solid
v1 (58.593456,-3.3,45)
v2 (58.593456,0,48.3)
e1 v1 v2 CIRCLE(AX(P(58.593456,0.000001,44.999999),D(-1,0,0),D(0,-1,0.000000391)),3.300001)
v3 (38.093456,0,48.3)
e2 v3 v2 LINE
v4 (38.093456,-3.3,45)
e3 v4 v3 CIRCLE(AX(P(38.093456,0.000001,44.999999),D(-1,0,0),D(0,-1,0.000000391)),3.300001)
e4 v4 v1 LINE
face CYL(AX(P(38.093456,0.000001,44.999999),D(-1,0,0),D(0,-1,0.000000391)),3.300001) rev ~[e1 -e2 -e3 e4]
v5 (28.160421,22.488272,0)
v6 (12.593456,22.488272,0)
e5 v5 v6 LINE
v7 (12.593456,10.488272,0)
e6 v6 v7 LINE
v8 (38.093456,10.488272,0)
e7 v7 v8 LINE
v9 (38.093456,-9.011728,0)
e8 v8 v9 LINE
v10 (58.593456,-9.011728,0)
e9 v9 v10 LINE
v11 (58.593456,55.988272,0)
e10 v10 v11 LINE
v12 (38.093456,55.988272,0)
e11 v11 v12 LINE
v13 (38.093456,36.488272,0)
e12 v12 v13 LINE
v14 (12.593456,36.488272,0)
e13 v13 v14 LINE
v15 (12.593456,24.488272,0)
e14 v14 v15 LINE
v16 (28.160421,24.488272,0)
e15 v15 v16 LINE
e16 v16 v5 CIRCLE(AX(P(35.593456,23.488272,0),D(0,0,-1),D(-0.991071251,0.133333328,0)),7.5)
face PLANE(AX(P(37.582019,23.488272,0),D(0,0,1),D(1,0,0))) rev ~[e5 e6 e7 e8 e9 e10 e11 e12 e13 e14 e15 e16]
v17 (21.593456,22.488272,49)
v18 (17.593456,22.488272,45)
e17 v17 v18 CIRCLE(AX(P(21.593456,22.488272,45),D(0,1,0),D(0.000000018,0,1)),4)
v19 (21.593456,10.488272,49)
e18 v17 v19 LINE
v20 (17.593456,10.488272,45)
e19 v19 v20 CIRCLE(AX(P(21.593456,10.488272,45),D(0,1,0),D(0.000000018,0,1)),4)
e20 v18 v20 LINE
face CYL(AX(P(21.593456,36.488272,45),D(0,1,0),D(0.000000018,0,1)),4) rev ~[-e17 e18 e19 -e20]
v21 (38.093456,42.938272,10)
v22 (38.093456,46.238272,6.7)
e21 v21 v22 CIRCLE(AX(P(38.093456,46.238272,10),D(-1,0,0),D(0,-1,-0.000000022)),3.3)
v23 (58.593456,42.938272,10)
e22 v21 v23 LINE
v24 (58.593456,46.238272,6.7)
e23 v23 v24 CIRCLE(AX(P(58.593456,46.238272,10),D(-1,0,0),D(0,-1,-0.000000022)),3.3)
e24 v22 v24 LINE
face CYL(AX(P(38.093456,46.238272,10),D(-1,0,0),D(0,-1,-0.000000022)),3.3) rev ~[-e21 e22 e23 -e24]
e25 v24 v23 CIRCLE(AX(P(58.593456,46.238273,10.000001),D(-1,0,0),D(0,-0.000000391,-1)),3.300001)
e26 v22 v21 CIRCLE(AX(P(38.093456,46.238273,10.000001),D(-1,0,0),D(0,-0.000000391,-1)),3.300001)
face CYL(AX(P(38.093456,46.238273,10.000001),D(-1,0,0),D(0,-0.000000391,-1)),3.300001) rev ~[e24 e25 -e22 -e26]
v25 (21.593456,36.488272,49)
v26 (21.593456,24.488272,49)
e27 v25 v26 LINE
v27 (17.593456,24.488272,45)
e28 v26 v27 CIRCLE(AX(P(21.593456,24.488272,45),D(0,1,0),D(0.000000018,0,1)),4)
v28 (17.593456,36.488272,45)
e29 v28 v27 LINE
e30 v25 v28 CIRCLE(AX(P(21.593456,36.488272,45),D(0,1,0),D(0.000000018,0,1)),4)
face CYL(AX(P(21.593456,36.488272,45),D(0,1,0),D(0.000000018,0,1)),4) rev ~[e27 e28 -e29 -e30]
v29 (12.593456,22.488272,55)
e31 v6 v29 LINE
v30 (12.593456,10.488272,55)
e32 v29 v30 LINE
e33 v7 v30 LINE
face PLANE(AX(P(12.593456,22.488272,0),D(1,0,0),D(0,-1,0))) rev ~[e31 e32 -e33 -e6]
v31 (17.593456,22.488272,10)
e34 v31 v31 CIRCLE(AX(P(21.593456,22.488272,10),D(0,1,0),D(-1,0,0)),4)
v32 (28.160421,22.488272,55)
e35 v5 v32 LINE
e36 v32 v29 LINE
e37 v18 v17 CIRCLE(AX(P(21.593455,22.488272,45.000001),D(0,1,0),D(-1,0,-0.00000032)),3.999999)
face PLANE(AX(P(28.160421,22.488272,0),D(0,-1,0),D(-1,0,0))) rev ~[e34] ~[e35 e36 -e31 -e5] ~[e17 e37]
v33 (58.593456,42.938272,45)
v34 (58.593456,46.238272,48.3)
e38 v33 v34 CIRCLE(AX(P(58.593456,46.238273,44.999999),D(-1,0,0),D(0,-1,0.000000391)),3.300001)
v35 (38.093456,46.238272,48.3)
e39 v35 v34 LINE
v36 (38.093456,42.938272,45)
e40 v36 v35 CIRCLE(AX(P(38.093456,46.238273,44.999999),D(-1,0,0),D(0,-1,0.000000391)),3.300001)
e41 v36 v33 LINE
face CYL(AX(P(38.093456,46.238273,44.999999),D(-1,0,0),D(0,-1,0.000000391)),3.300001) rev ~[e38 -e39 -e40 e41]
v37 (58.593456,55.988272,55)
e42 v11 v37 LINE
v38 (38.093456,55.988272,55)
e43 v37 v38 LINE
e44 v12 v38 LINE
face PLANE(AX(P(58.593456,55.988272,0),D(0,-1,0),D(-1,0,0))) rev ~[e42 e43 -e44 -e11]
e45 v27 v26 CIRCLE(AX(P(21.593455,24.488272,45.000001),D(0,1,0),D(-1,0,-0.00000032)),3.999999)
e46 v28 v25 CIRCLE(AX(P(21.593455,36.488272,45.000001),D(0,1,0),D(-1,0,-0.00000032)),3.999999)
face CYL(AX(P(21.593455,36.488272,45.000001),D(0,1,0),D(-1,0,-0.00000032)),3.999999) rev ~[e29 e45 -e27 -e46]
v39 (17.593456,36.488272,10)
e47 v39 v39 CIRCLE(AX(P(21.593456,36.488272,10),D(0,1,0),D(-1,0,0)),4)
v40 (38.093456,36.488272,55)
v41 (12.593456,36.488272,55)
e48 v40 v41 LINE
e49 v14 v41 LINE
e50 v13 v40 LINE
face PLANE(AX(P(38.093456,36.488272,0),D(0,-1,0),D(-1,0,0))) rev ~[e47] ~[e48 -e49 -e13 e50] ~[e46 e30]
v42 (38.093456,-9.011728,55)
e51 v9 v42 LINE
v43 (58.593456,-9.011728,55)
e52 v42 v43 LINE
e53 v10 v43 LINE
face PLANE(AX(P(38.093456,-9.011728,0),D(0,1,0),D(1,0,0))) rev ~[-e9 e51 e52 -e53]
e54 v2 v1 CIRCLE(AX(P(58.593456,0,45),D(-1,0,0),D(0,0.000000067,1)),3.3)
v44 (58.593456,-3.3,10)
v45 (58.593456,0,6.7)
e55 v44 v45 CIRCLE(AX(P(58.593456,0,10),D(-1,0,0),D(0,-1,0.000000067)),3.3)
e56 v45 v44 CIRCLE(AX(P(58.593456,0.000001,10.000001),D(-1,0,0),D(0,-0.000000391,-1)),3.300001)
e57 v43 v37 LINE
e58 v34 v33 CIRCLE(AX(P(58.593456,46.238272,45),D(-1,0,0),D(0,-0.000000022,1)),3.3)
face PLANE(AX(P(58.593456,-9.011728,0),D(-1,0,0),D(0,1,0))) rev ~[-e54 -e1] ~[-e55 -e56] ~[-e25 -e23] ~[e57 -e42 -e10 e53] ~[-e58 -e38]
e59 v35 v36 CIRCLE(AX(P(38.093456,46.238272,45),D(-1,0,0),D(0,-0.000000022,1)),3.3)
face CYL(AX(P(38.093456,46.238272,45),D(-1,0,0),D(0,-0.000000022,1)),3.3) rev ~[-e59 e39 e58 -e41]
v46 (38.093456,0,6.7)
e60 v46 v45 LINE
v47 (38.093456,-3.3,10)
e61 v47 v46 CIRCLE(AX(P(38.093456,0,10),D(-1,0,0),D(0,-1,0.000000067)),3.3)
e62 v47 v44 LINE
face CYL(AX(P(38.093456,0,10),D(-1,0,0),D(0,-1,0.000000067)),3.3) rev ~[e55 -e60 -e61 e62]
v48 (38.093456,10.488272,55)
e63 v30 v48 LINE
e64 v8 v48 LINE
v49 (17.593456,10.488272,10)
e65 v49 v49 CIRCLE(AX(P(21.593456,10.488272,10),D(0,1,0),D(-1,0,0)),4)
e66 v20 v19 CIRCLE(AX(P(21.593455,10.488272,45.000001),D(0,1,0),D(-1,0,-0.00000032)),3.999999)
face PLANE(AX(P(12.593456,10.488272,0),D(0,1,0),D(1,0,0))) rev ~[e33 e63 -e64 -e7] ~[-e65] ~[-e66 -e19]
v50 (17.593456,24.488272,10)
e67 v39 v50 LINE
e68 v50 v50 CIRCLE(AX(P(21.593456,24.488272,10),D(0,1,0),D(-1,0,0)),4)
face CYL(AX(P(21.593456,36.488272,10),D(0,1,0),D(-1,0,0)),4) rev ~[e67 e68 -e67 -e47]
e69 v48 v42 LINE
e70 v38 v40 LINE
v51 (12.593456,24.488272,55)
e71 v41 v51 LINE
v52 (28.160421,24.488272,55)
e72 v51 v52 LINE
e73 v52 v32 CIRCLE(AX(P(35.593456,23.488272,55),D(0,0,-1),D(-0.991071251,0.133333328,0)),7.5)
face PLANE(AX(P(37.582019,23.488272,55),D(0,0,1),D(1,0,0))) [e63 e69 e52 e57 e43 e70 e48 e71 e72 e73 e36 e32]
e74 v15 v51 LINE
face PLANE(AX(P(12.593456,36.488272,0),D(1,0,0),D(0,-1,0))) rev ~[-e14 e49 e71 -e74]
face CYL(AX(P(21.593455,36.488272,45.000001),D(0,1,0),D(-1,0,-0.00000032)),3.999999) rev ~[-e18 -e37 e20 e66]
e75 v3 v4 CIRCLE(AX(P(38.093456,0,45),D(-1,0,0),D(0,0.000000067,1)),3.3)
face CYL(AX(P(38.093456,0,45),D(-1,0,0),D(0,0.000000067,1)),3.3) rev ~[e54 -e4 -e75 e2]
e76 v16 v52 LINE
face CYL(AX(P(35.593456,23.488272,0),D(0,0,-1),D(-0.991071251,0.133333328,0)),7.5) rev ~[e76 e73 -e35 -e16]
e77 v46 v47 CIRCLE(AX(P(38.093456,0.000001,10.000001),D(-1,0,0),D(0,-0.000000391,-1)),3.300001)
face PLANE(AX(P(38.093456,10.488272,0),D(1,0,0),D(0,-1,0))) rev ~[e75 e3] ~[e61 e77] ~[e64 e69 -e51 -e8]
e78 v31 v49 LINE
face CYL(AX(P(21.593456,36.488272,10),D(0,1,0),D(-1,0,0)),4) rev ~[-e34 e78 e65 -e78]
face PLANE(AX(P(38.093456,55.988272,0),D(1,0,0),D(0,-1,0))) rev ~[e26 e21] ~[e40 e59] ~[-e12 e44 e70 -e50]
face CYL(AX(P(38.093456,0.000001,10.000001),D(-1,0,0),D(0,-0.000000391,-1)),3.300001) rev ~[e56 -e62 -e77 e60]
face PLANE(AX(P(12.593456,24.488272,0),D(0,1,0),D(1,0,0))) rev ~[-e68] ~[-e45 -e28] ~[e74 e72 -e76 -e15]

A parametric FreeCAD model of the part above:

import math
import FreeCAD as App
import Part
import Sketcher

V = App.Vector

doc = App.newDocument("Part")
body = doc.addObject("PartDesign::Body", "Body")

sketch1 = body.newObject("Sketcher::SketchObject", "Sketch")
sketch1.AttachmentSupport = (doc.getObject("XY_Plane"), [""])
sketch1.MapMode = "FlatFace"
sketch1.addGeometry(Part.LineSegment(V(58.593456, -9.011728, 0), V(58.593456, 55.988272, 0)), False)
sketch1.addGeometry(Part.LineSegment(V(58.593456, 55.988272, 0), V(38.093456, 55.988272, 0)), False)
sketch1.addGeometry(Part.LineSegment(V(38.093456, 55.988272, 0), V(38.093456, 36.488272, 0)), False)
sketch1.addGeometry(Part.LineSegment(V(38.093456, 36.488272, 0), V(12.593456, 36.488272, 0)), False)
sketch1.addGeometry(Part.LineSegment(V(12.593456, 36.488272, 0), V(12.593456, 24.488272, 0)), False)
sketch1.addGeometry(Part.LineSegment(V(12.593456, 24.488272, 0), V(28.160421, 24.488272, 0)), False)
sketch1.addGeometry(Part.ArcOfCircle(Part.Circle(V(35.593456, 23.488272, 0), V(0, 0, 1), 7.5), math.radians(-172.337745), math.radians(172.337745)), False)
sketch1.addGeometry(Part.LineSegment(V(28.160421, 22.488272, 0), V(12.593456, 22.488272, 0)), False)
sketch1.addGeometry(Part.LineSegment(V(12.593456, 22.488272, 0), V(12.593456, 10.488272, 0)), False)
sketch1.addGeometry(Part.LineSegment(V(12.593456, 10.488272, 0), V(38.093456, 10.488272, 0)), False)
sketch1.addGeometry(Part.LineSegment(V(38.093456, 10.488272, 0), V(38.093456, -9.011728, 0)), False)
sketch1.addGeometry(Part.LineSegment(V(38.093456, -9.011728, 0), V(58.593456, -9.011728, 0)), False)
sketch1.addConstraint(Sketcher.Constraint("Coincident", 0, 2, 1, 1))
sketch1.addConstraint(Sketcher.Constraint("Coincident", 1, 2, 2, 1))
sketch1.addConstraint(Sketcher.Constraint("Coincident", 2, 2, 3, 1))
sketch1.addConstraint(Sketcher.Constraint("Coincident", 3, 2, 4, 1))
sketch1.addConstraint(Sketcher.Constraint("Coincident", 4, 2, 5, 1))
sketch1.addConstraint(Sketcher.Constraint("Coincident", 5, 2, 6, 2))
sketch1.addConstraint(Sketcher.Constraint("Coincident", 6, 1, 7, 1))
sketch1.addConstraint(Sketcher.Constraint("Coincident", 7, 2, 8, 1))
sketch1.addConstraint(Sketcher.Constraint("Coincident", 8, 2, 9, 1))
sketch1.addConstraint(Sketcher.Constraint("Coincident", 9, 2, 10, 1))
sketch1.addConstraint(Sketcher.Constraint("Coincident", 10, 2, 11, 1))
sketch1.addConstraint(Sketcher.Constraint("Coincident", 11, 2, 0, 1))
sketch1.addConstraint(Sketcher.Constraint("Vertical", 0))
sketch1.addConstraint(Sketcher.Constraint("Horizontal", 1))
sketch1.addConstraint(Sketcher.Constraint("Vertical", 2))
sketch1.addConstraint(Sketcher.Constraint("Horizontal", 3))
sketch1.addConstraint(Sketcher.Constraint("Vertical", 4))
sketch1.addConstraint(Sketcher.Constraint("Horizontal", 5))
sketch1.addConstraint(Sketcher.Constraint("Horizontal", 7))
sketch1.addConstraint(Sketcher.Constraint("Vertical", 8))
sketch1.addConstraint(Sketcher.Constraint("Horizontal", 9))
sketch1.addConstraint(Sketcher.Constraint("Vertical", 10))
sketch1.addConstraint(Sketcher.Constraint("Horizontal", 11))
sketch1.addConstraint(Sketcher.Constraint("Vertical", 5, 2, 6, 1))
sketch1.addConstraint(Sketcher.Constraint("Vertical", 4, 2, 7, 2))
sketch1.addConstraint(Sketcher.Constraint("Vertical", 2, 2, 9, 2))
sketch1.addConstraint(Sketcher.Constraint("Equal", 4, 8))
sketch1.addConstraint(Sketcher.Constraint("Equal", 2, 10))
sketch1.addConstraint(Sketcher.Constraint("Radius", 6, 7.5))
sketch1.addConstraint(Sketcher.Constraint("DistanceY", 0, 1, 0, 2, 65.0))
sketch1.addConstraint(Sketcher.Constraint("DistanceY", 4, 2, 4, 1, 12.0))
sketch1.addConstraint(Sketcher.Constraint("DistanceX", 1, 2, 1, 1, 20.5))
sketch1.addConstraint(Sketcher.Constraint("DistanceX", 3, 2, 3, 1, 25.5))
sketch1.addConstraint(Sketcher.Constraint("DistanceY", 2, 2, 2, 1, 19.5))
sketch1.addConstraint(Sketcher.Constraint("DistanceX", 6, 3, 0, 2, 23.0))
sketch1.addConstraint(Sketcher.Constraint("DistanceY", -1, 1, 6, 3, 23.488272))
sketch1.addConstraint(Sketcher.Constraint("DistanceX", -1, 1, 5, 2, 28.160421))
pad1 = body.newObject("PartDesign::Pad", "Pad")
pad1.Profile = sketch1
pad1.Length = 55

sketch2 = body.newObject("Sketcher::SketchObject", "Sketch001")
sketch2.AttachmentSupport = (doc.getObject("XZ_Plane"), [""])
sketch2.MapMode = "FlatFace"
sketch2.AttachmentOffset = App.Placement(V(0, 0, -36.488272), App.Rotation())
sketch2.addGeometry(Part.Circle(V(21.593456, 10, 0), V(0, 0, 1), 4), False)
sketch2.addGeometry(Part.ArcOfCircle(Part.Circle(V(21.593455, 45.000001, 0), V(0, 0, 1), 3.999999), math.radians(89.999982), math.radians(180.000018)), False)
sketch2.addGeometry(Part.ArcOfCircle(Part.Circle(V(21.593456, 45, 0), V(0, 0, 1), 4), math.radians(-179.999999), math.radians(89.999999)), False)
sketch2.addConstraint(Sketcher.Constraint("Tangent", 1, 1, 2, 2))
sketch2.addConstraint(Sketcher.Constraint("Coincident", 2, 1, 1, 2))
sketch2.addConstraint(Sketcher.Constraint("Equal", 0, 1))
sketch2.addConstraint(Sketcher.Constraint("Horizontal", 1, 3, 2, 1))
sketch2.addConstraint(Sketcher.Constraint("Vertical", 0, 3, 1, 3))
sketch2.addConstraint(Sketcher.Constraint("Vertical", 2, 3, 1, 1))
sketch2.addConstraint(Sketcher.Constraint("Diameter", 0, 8.0))
sketch2.addConstraint(Sketcher.Constraint("DistanceY", -1, 1, 0, 3, 10.0))
sketch2.addConstraint(Sketcher.Constraint("DistanceY", -1, 1, 1, 3, 45.000001))
sketch2.addConstraint(Sketcher.Constraint("DistanceX", -1, 1, 0, 3, 21.593456))
pocket1 = body.newObject("PartDesign::Pocket", "Pocket")
pocket1.Profile = sketch2
pocket1.Length = 29.3
pocket1.Reversed = True

sketch3 = body.newObject("Sketcher::SketchObject", "Sketch002")
sketch3.AttachmentSupport = (doc.getObject("YZ_Plane"), [""])
sketch3.MapMode = "FlatFace"
sketch3.AttachmentOffset = App.Placement(V(0, 0, 38.093456), App.Rotation())
sketch3.addGeometry(Part.ArcOfCircle(Part.Circle(V(0.000001, 44.999999, 0), V(0, 0, 1), 3.300001), math.radians(90.000022), math.radians(179.999978)), False)
sketch3.addGeometry(Part.ArcOfCircle(Part.Circle(V(0, 45, 0), V(0, 0, 1), 3.3), math.radians(-179.999996), math.radians(89.999996)), False)
sketch3.addGeometry(Part.ArcOfCircle(Part.Circle(V(0, 10, 0), V(0, 0, 1), 3.3), math.radians(-89.999996), math.radians(179.999996)), False)
sketch3.addGeometry(Part.ArcOfCircle(Part.Circle(V(0.000001, 10.000001, 0), V(0, 0, 1), 3.300001), math.radians(-179.999978), math.radians(-90.000022)), False)
sketch3.addConstraint(Sketcher.Constraint("Tangent", 0, 1, 1, 2))
sketch3.addConstraint(Sketcher.Constraint("Coincident", 1, 1, 0, 2))
sketch3.addConstraint(Sketcher.Constraint("Tangent", 2, 1, 3, 2))
sketch3.addConstraint(Sketcher.Constraint("Coincident", 3, 1, 2, 2))
sketch3.addConstraint(Sketcher.Constraint("Equal", 1, 2))
sketch3.addConstraint(Sketcher.Constraint("PointOnObject", 0, 3, -2))
sketch3.addConstraint(Sketcher.Constraint("PointOnObject", 2, 3, -2))
sketch3.addConstraint(Sketcher.Constraint("PointOnObject", 0, 1, -2))
sketch3.addConstraint(Sketcher.Constraint("PointOnObject", 2, 1, -2))
sketch3.addConstraint(Sketcher.Constraint("Horizontal", 0, 3, 1, 1))
sketch3.addConstraint(Sketcher.Constraint("Horizontal", 2, 3, 3, 1))
sketch3.addConstraint(Sketcher.Constraint("Radius", 0, 3.300001))
sketch3.addConstraint(Sketcher.Constraint("DistanceY", -1, 1, 0, 3, 44.999999))
sketch3.addConstraint(Sketcher.Constraint("DistanceY", -1, 1, 2, 3, 10.0))
pocket2 = body.newObject("PartDesign::Pocket", "Pocket001")
pocket2.Profile = sketch3
pocket2.Length = 33.2
pocket2.Reversed = True

sketch4 = body.newObject("Sketcher::SketchObject", "Sketch003")
sketch4.AttachmentSupport = (doc.getObject("YZ_Plane"), [""])
sketch4.MapMode = "FlatFace"
sketch4.AttachmentOffset = App.Placement(V(0, 0, 38.093456), App.Rotation())
sketch4.addGeometry(Part.ArcOfCircle(Part.Circle(V(46.238273, 44.999999, 0), V(0, 0, 1), 3.300001), math.radians(90.000022), math.radians(179.999978)), False)
sketch4.addGeometry(Part.ArcOfCircle(Part.Circle(V(46.238272, 45, 0), V(0, 0, 1), 3.3), math.radians(179.999999), math.radians(450.000001)), False)
sketch4.addConstraint(Sketcher.Constraint("Tangent", 0, 1, 1, 2))
sketch4.addConstraint(Sketcher.Constraint("Coincident", 1, 1, 0, 2))
sketch4.addConstraint(Sketcher.Constraint("Horizontal", 0, 3, 1, 1))
sketch4.addConstraint(Sketcher.Constraint("Vertical", 1, 3, 0, 1))
sketch4.addConstraint(Sketcher.Constraint("Radius", 0, 3.300001))
sketch4.addConstraint(Sketcher.Constraint("DistanceY", -1, 1, 0, 3, 44.999999))
sketch4.addConstraint(Sketcher.Constraint("DistanceX", -1, 1, 0, 3, 46.238273))
pocket3 = body.newObject("PartDesign::Pocket", "Pocket002")
pocket3.Profile = sketch4
pocket3.Length = 34.5
pocket3.Reversed = True

sketch5 = body.newObject("Sketcher::SketchObject", "Sketch004")
sketch5.AttachmentSupport = (doc.getObject("YZ_Plane"), [""])
sketch5.MapMode = "FlatFace"
sketch5.AttachmentOffset = App.Placement(V(0, 0, 38.093456), App.Rotation())
sketch5.addGeometry(Part.ArcOfCircle(Part.Circle(V(46.238272, 10, 0), V(0, 0, 1), 3.3), math.radians(-90.000001), math.radians(180.000001)), False)
sketch5.addGeometry(Part.ArcOfCircle(Part.Circle(V(46.238273, 10.000001, 0), V(0, 0, 1), 3.300001), math.radians(-179.999978), math.radians(-90.000022)), False)
sketch5.addConstraint(Sketcher.Constraint("Tangent", 0, 1, 1, 2))
sketch5.addConstraint(Sketcher.Constraint("Coincident", 1, 1, 0, 2))
sketch5.addConstraint(Sketcher.Constraint("Horizontal", 0, 3, 1, 1))
sketch5.addConstraint(Sketcher.Constraint("Vertical", 1, 3, 0, 1))
sketch5.addConstraint(Sketcher.Constraint("Radius", 0, 3.3))
sketch5.addConstraint(Sketcher.Constraint("DistanceY", -1, 1, 0, 3, 10.0))
sketch5.addConstraint(Sketcher.Constraint("DistanceX", -1, 1, 0, 3, 46.238272))
pocket4 = body.newObject("PartDesign::Pocket", "Pocket003")
pocket4.Profile = sketch5
pocket4.Length = 37.2
pocket4.Reversed = True

doc.recompute()
